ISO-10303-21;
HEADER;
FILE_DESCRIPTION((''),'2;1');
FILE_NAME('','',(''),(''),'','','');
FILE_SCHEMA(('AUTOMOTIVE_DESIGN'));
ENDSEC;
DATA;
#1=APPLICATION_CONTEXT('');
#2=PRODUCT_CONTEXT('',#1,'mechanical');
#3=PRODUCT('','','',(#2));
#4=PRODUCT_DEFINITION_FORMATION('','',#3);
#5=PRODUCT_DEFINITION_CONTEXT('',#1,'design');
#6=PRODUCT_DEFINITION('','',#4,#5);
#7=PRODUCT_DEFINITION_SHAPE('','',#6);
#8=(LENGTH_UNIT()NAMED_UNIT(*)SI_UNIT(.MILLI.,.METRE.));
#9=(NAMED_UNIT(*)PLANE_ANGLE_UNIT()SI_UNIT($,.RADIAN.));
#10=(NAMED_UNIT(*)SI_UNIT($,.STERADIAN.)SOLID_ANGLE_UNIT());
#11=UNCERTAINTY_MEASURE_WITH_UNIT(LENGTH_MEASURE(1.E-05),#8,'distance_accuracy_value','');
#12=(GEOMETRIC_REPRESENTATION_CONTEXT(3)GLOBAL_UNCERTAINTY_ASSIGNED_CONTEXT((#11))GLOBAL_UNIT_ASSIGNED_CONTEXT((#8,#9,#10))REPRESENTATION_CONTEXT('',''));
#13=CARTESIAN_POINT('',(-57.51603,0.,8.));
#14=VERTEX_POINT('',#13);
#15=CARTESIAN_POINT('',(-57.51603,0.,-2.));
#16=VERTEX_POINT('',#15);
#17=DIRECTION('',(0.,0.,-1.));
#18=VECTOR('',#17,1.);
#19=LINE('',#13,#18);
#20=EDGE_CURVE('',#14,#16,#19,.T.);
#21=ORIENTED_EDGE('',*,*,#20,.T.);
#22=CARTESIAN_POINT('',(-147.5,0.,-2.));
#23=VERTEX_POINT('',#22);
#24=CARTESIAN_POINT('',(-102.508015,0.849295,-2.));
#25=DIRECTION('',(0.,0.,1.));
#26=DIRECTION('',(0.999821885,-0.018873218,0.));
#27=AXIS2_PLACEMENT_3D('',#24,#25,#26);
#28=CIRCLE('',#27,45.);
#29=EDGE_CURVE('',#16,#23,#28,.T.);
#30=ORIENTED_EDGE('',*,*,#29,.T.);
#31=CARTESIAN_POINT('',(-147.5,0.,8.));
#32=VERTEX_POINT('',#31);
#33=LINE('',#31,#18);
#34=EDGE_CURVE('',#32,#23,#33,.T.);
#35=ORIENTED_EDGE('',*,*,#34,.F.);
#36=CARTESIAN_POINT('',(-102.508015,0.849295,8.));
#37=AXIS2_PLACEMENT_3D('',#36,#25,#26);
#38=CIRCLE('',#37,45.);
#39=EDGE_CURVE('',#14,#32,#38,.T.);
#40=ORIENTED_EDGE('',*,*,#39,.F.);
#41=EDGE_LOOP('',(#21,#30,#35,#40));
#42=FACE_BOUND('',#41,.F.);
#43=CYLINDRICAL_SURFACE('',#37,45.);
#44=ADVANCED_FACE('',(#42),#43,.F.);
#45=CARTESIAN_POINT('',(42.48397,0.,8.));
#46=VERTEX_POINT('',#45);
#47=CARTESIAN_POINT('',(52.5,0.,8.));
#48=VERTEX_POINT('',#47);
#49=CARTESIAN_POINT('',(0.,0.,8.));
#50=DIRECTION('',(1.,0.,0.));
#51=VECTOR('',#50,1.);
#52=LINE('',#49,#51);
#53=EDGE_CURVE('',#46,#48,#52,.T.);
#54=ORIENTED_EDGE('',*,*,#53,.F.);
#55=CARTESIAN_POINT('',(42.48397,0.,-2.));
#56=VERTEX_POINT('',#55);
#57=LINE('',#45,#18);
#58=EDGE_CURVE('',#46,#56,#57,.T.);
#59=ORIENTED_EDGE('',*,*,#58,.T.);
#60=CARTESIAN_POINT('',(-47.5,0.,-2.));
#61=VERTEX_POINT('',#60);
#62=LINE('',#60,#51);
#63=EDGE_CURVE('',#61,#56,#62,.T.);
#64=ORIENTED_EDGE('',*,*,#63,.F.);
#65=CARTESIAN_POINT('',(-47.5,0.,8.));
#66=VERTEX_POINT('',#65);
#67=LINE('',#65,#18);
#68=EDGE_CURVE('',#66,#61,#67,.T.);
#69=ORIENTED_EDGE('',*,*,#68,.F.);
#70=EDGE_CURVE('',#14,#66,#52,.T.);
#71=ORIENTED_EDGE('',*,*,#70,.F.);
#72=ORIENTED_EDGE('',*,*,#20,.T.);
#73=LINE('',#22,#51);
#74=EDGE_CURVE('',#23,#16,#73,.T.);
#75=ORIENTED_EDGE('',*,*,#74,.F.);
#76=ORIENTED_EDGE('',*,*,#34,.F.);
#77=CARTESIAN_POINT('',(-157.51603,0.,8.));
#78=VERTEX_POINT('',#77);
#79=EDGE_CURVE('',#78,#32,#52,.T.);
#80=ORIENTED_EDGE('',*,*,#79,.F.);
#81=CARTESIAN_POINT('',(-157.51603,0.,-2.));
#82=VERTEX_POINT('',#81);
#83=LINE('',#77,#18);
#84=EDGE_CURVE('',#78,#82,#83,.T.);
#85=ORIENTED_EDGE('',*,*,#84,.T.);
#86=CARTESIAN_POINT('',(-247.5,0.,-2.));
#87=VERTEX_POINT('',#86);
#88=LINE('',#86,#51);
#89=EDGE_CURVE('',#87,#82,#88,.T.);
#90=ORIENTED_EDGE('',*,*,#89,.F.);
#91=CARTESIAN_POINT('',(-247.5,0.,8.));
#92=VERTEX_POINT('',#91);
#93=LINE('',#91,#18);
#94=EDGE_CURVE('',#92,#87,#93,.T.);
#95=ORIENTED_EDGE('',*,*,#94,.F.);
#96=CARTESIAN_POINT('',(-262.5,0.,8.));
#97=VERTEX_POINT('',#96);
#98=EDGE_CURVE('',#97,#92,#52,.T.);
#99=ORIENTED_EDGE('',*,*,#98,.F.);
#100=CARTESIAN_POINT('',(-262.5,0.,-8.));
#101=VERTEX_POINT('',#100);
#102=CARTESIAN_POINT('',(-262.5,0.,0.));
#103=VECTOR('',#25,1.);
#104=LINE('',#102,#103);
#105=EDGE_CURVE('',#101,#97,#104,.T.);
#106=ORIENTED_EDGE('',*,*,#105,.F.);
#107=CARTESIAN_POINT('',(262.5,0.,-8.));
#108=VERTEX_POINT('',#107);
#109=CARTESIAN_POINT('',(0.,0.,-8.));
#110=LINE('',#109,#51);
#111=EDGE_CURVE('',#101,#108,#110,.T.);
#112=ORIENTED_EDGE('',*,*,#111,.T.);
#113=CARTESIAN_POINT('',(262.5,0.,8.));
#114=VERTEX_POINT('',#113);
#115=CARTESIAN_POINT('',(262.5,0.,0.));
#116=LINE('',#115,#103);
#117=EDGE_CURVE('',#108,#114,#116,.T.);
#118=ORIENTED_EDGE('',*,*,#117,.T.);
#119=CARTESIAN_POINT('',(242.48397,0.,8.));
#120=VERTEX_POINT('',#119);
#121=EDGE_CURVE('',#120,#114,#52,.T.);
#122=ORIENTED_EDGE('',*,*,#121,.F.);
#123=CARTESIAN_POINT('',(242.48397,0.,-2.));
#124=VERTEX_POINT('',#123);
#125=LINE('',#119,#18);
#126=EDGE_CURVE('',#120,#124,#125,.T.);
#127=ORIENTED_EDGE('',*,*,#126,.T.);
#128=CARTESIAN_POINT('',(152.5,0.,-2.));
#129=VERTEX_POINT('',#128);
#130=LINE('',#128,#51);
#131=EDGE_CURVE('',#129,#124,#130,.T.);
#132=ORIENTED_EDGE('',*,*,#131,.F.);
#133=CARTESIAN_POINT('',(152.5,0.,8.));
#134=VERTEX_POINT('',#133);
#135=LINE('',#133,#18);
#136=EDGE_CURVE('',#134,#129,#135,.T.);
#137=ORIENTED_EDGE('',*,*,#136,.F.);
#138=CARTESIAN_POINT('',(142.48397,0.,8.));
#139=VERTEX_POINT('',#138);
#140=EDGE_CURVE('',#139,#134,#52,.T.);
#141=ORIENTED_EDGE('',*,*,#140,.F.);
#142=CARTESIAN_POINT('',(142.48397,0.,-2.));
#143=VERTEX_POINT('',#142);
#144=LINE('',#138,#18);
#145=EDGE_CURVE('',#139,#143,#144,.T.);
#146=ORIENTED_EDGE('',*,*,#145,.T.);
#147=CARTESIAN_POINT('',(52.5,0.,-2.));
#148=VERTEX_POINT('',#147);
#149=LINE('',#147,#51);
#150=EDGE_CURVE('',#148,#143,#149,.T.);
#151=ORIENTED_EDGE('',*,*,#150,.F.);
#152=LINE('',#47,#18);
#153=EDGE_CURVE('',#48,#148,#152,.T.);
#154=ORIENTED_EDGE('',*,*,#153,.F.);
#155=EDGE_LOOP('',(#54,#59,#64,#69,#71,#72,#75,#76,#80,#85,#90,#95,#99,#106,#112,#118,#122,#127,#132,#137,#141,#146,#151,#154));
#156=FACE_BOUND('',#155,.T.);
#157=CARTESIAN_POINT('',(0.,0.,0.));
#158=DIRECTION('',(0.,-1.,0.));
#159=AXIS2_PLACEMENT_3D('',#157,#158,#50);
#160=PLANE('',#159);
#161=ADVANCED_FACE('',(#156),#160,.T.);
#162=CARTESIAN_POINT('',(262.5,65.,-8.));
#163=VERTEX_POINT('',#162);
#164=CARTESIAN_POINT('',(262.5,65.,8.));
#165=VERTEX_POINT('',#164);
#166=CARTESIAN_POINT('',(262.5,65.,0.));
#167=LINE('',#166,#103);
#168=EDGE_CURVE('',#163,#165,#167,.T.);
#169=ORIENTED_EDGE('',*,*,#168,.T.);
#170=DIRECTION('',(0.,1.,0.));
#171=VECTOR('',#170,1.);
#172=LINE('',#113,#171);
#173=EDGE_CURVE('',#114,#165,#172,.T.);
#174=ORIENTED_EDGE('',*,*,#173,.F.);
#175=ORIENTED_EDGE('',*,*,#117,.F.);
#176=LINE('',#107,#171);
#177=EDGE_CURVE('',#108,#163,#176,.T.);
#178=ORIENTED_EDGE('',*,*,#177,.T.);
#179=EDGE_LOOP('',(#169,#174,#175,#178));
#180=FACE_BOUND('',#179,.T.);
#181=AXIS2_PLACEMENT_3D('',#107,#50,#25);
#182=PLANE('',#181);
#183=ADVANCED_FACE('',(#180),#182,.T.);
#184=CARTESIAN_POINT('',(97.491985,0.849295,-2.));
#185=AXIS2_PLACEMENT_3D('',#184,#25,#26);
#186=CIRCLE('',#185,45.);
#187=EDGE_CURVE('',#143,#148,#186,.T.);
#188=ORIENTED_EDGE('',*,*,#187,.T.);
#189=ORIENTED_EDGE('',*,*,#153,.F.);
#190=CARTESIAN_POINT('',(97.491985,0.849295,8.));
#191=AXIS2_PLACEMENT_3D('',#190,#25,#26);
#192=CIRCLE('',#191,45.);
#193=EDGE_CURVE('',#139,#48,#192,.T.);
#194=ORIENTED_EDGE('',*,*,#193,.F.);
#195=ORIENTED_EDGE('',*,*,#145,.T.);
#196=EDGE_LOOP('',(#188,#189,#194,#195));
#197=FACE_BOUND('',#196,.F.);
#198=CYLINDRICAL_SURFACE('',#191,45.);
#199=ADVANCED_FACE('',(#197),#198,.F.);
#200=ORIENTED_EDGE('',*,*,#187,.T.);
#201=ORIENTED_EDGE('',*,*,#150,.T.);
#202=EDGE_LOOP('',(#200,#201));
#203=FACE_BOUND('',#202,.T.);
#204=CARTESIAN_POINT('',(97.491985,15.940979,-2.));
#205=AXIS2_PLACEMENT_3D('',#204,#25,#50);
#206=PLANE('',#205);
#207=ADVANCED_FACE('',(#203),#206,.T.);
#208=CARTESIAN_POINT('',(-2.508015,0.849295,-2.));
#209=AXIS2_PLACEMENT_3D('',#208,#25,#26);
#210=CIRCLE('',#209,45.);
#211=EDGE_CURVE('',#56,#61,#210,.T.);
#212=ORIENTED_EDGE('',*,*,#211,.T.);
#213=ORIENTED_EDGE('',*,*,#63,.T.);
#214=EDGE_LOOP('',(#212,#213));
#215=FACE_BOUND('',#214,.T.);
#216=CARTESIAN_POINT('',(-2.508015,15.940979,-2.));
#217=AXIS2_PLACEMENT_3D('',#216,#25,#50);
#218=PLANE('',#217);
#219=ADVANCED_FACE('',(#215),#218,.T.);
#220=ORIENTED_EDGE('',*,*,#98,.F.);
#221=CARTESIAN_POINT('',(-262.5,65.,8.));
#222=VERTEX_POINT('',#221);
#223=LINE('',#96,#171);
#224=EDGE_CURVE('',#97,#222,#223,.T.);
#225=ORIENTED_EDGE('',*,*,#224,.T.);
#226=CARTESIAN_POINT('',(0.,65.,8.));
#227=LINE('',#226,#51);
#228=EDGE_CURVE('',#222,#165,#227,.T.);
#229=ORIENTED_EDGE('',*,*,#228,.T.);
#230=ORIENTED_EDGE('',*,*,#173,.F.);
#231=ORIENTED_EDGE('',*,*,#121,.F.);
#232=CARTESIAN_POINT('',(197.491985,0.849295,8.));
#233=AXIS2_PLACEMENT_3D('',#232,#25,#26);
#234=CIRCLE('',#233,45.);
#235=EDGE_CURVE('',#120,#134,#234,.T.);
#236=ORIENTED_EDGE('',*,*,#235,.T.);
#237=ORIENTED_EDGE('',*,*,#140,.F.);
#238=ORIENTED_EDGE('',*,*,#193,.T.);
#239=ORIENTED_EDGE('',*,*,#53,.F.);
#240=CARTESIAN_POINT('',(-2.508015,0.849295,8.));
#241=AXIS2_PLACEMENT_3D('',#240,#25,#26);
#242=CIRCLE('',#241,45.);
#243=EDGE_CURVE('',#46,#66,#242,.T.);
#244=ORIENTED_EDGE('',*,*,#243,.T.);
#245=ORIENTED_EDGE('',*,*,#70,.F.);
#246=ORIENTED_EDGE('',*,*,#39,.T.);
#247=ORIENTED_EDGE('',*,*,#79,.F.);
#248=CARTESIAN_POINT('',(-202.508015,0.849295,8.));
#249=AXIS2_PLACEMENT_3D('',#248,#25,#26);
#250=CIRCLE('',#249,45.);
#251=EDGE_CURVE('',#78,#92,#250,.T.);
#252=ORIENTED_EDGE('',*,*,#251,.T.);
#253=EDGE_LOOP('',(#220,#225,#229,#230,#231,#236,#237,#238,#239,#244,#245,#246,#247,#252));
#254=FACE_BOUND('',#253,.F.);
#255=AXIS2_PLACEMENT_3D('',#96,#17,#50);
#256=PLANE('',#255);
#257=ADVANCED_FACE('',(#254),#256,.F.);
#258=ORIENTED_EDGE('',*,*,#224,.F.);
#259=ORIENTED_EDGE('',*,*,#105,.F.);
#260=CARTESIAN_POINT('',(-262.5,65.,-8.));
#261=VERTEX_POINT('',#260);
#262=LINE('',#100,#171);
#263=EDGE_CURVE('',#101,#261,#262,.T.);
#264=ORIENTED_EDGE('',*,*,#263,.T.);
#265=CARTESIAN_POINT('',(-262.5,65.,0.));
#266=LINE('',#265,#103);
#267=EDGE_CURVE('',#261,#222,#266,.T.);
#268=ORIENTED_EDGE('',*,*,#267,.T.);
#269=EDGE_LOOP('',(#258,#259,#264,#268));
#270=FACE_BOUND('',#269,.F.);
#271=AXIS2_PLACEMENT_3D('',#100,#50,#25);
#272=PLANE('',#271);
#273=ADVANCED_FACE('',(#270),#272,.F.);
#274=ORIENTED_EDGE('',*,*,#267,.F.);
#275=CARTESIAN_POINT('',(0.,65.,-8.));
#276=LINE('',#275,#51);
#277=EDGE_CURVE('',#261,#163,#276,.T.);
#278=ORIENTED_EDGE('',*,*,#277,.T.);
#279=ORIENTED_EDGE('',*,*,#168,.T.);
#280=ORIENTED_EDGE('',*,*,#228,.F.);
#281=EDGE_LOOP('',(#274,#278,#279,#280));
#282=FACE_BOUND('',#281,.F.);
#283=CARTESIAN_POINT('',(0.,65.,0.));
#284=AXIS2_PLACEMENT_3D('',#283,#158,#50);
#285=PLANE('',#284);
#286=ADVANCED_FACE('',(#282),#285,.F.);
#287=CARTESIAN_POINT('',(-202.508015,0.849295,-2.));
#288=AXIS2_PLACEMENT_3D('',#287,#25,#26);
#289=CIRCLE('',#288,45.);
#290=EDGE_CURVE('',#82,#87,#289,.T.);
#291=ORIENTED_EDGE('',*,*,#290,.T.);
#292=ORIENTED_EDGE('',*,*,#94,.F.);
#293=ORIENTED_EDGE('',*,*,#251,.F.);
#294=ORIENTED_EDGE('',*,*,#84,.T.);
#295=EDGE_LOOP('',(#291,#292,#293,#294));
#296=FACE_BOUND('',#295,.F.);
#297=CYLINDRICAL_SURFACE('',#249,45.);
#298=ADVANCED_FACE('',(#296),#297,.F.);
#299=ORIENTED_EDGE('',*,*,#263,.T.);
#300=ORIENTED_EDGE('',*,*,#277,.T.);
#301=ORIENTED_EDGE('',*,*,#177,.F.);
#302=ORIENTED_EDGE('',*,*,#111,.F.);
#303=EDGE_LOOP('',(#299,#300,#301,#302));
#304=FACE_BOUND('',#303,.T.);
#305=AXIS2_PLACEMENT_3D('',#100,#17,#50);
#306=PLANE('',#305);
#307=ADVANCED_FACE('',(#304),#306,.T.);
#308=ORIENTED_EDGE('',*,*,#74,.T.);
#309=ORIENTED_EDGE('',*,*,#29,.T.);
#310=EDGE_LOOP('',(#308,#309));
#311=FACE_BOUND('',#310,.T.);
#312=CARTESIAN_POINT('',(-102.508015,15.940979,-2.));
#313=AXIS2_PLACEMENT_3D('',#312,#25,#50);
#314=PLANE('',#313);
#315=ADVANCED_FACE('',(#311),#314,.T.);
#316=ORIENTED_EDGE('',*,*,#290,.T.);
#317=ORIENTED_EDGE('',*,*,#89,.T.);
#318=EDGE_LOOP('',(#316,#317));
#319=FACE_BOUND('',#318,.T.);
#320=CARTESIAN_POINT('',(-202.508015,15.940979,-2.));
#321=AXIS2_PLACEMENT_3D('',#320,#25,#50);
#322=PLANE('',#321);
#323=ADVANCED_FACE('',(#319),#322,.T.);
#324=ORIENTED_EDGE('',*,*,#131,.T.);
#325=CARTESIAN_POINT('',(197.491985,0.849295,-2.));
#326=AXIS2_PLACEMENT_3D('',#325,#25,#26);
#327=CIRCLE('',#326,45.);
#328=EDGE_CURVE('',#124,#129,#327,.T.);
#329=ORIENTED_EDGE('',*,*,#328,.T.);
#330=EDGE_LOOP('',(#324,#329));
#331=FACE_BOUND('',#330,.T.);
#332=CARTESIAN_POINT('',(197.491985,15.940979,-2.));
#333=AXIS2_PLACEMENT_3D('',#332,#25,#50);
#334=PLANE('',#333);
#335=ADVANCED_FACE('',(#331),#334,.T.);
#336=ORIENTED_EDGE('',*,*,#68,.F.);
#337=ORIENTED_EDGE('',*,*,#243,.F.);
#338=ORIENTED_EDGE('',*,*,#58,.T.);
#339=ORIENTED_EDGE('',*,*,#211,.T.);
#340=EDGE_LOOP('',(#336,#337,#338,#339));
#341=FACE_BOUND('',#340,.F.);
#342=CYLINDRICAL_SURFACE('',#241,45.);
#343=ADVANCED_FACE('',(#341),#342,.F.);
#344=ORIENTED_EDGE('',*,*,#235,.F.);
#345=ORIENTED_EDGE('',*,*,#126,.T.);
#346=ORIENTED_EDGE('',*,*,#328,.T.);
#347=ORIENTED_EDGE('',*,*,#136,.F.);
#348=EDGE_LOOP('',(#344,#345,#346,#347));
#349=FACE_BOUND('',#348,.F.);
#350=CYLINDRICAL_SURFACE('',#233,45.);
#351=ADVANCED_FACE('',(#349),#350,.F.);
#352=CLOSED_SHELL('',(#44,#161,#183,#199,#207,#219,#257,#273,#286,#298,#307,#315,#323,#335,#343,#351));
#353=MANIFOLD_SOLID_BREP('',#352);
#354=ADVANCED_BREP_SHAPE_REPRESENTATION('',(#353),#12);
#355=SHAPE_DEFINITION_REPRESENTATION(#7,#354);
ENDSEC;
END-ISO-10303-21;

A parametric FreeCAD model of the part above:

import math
import FreeCAD as App
import Part
import Sketcher

V = App.Vector


def add_polygon(sketch, points):
    """Adds a closed chain of lines whose ends are joined by coincident constraints."""
    first, n = sketch.GeometryCount, len(points)
    for a, b in zip(points, points[1:] + points[:1]):
        sketch.addGeometry(Part.LineSegment(App.Vector(*a, 0), App.Vector(*b, 0)), False)
    for i in range(n):
        sketch.addConstraint(Sketcher.Constraint("Coincident", first + i, 2, first + (i + 1) % n, 1))

doc = App.newDocument("Part")
params = doc.addObject("Spreadsheet::Sheet", "Params")
for row, (alias, value) in enumerate([
    ("sketch1_width", "525 mm"),
    ("sketch1_height", "16 mm"),
    ("pad1_length", "65 mm"),
    ("sketch2_radius", "45 mm"),
    ("pocket1_length", "10 mm"),
], start=1):
    params.set(f"A{row}", alias)
    params.set(f"B{row}", "=" + value)
    params.setAlias(f"B{row}", alias)

body = doc.addObject("PartDesign::Body", "Body")

sketch1 = doc.addObject("Sketcher::SketchObject", "Sketch")
body.addObject(sketch1)
sketch1.AttachmentSupport = (doc.XZ_Plane, [""])
sketch1.MapMode = "FlatFace"
add_polygon(sketch1, [(-262, 8), (-262, -8), (262, -8), (262, 8)])
sketch1.addConstraint([
    Sketcher.Constraint("Vertical", 0),
    Sketcher.Constraint("Horizontal", 1),
    Sketcher.Constraint("Vertical", 2),
    Sketcher.Constraint("Horizontal", 3),
    Sketcher.Constraint("Symmetric", 0, 2, 2, 2, -1, 1),
    Sketcher.Constraint("DistanceX", 1, 1, 1, 2, 525.0),
    Sketcher.Constraint("DistanceY", 0, 2, 0, 1, 16.0),
])
sketch1.setExpression("Constraints[9]", "Params.sketch1_width")
sketch1.setExpression("Constraints[10]", "Params.sketch1_height")
pad1 = doc.addObject("PartDesign::Pad", "Pad")
body.addObject(pad1)
pad1.Profile = sketch1
pad1.setExpression("Length", "Params.pad1_length")
pad1.Reversed = True

sketch2 = doc.addObject("Sketcher::SketchObject", "Sketch001")
body.addObject(sketch2)
sketch2.AttachmentSupport = (doc.XY_Plane, [""])
sketch2.MapMode = "FlatFace"
sketch2.AttachmentOffset = App.Placement(V(0, 0, 8), App.Rotation())
sketch2.addGeometry([
    Part.LineSegment(V(-248, 0, 0), V(-158, 0, 0)),
    Part.ArcOfCircle(Part.Circle(V(-203, 1, 0), V(0, 0, 1), 45), math.radians(-1), math.radians(181)),
    Part.ArcOfCircle(Part.Circle(V(-103, 1, 0), V(0, 0, 1), 45), math.radians(-1), math.radians(181)),
    Part.LineSegment(V(-148, 0, 0), V(-58, 0, 0)),
    Part.ArcOfCircle(Part.Circle(V(-3, 1, 0), V(0, 0, 1), 45), math.radians(-1), math.radians(181)),
    Part.LineSegment(V(-48, 0, 0), V(42, 0, 0)),
    Part.ArcOfCircle(Part.Circle(V(97, 1, 0), V(0, 0, 1), 45), math.radians(-1), math.radians(181)),
    Part.LineSegment(V(52, 0, 0), V(142, 0, 0)),
    Part.LineSegment(V(152, 0, 0), V(242, 0, 0)),
    Part.ArcOfCircle(Part.Circle(V(197, 1, 0), V(0, 0, 1), 45), math.radians(-1), math.radians(181)),
], False)
sketch2.addConstraint([
    Sketcher.Constraint("Coincident", 0, 1, 1, 2),
    Sketcher.Constraint("Coincident", 1, 1, 0, 2),
    Sketcher.Constraint("Coincident", 2, 1, 3, 2),
    Sketcher.Constraint("Coincident", 3, 1, 2, 2),
    Sketcher.Constraint("Coincident", 4, 1, 5, 2),
    Sketcher.Constraint("Coincident", 5, 1, 4, 2),
    Sketcher.Constraint("Coincident", 6, 1, 7, 2),
    Sketcher.Constraint("Coincident", 7, 1, 6, 2),
    Sketcher.Constraint("Coincident", 8, 1, 9, 2),
    Sketcher.Constraint("Coincident", 9, 1, 8, 2),
    Sketcher.Constraint("Horizontal", 0),
    Sketcher.Constraint("Horizontal", 3),
    Sketcher.Constraint("Horizontal", 5),
    Sketcher.Constraint("Horizontal", 7),
    Sketcher.Constraint("Horizontal", 8),
    Sketcher.Constraint("Equal", 1, 2),
    Sketcher.Constraint("Equal", 2, 4),
    Sketcher.Constraint("Equal", 4, 6),
    Sketcher.Constraint("Equal", 6, 9),
    Sketcher.Constraint("PointOnObject", 0, 1, -1),
    Sketcher.Constraint("PointOnObject", 2, 1, -1),
    Sketcher.Constraint("PointOnObject", 4, 1, -1),
    Sketcher.Constraint("PointOnObject", 6, 1, -1),
    Sketcher.Constraint("PointOnObject", 8, 1, -1),
    Sketcher.Constraint("Horizontal", 1, 3, 2, 3),
    Sketcher.Constraint("Horizontal", 2, 3, 4, 3),
    Sketcher.Constraint("Horizontal", 4, 3, 6, 3),
    Sketcher.Constraint("Horizontal", 6, 3, 9, 3),
    Sketcher.Constraint("Radius", 1, 45.0),
    Sketcher.Constraint("DistanceX", 1, 3, 2, 3, 100.0),
    Sketcher.Constraint("DistanceX", 2, 3, 4, 3, 100.0),
    Sketcher.Constraint("DistanceX", 4, 3, 6, 3, 100.0),
    Sketcher.Constraint("DistanceX", 6, 3, 9, 3, 100.0),
    Sketcher.Constraint("DistanceX", 0, 1, -1, 1, 247.5),
    Sketcher.Constraint("DistanceX", 0, 1, 0, 2, 89.98397),
])
sketch2.setExpression("Constraints[28]", "Params.sketch2_radius")
pocket1 = doc.addObject("PartDesign::Pocket", "Pocket")
body.addObject(pocket1)
pocket1.Profile = sketch2
pocket1.setExpression("Length", "Params.pocket1_length")

doc.recompute()
